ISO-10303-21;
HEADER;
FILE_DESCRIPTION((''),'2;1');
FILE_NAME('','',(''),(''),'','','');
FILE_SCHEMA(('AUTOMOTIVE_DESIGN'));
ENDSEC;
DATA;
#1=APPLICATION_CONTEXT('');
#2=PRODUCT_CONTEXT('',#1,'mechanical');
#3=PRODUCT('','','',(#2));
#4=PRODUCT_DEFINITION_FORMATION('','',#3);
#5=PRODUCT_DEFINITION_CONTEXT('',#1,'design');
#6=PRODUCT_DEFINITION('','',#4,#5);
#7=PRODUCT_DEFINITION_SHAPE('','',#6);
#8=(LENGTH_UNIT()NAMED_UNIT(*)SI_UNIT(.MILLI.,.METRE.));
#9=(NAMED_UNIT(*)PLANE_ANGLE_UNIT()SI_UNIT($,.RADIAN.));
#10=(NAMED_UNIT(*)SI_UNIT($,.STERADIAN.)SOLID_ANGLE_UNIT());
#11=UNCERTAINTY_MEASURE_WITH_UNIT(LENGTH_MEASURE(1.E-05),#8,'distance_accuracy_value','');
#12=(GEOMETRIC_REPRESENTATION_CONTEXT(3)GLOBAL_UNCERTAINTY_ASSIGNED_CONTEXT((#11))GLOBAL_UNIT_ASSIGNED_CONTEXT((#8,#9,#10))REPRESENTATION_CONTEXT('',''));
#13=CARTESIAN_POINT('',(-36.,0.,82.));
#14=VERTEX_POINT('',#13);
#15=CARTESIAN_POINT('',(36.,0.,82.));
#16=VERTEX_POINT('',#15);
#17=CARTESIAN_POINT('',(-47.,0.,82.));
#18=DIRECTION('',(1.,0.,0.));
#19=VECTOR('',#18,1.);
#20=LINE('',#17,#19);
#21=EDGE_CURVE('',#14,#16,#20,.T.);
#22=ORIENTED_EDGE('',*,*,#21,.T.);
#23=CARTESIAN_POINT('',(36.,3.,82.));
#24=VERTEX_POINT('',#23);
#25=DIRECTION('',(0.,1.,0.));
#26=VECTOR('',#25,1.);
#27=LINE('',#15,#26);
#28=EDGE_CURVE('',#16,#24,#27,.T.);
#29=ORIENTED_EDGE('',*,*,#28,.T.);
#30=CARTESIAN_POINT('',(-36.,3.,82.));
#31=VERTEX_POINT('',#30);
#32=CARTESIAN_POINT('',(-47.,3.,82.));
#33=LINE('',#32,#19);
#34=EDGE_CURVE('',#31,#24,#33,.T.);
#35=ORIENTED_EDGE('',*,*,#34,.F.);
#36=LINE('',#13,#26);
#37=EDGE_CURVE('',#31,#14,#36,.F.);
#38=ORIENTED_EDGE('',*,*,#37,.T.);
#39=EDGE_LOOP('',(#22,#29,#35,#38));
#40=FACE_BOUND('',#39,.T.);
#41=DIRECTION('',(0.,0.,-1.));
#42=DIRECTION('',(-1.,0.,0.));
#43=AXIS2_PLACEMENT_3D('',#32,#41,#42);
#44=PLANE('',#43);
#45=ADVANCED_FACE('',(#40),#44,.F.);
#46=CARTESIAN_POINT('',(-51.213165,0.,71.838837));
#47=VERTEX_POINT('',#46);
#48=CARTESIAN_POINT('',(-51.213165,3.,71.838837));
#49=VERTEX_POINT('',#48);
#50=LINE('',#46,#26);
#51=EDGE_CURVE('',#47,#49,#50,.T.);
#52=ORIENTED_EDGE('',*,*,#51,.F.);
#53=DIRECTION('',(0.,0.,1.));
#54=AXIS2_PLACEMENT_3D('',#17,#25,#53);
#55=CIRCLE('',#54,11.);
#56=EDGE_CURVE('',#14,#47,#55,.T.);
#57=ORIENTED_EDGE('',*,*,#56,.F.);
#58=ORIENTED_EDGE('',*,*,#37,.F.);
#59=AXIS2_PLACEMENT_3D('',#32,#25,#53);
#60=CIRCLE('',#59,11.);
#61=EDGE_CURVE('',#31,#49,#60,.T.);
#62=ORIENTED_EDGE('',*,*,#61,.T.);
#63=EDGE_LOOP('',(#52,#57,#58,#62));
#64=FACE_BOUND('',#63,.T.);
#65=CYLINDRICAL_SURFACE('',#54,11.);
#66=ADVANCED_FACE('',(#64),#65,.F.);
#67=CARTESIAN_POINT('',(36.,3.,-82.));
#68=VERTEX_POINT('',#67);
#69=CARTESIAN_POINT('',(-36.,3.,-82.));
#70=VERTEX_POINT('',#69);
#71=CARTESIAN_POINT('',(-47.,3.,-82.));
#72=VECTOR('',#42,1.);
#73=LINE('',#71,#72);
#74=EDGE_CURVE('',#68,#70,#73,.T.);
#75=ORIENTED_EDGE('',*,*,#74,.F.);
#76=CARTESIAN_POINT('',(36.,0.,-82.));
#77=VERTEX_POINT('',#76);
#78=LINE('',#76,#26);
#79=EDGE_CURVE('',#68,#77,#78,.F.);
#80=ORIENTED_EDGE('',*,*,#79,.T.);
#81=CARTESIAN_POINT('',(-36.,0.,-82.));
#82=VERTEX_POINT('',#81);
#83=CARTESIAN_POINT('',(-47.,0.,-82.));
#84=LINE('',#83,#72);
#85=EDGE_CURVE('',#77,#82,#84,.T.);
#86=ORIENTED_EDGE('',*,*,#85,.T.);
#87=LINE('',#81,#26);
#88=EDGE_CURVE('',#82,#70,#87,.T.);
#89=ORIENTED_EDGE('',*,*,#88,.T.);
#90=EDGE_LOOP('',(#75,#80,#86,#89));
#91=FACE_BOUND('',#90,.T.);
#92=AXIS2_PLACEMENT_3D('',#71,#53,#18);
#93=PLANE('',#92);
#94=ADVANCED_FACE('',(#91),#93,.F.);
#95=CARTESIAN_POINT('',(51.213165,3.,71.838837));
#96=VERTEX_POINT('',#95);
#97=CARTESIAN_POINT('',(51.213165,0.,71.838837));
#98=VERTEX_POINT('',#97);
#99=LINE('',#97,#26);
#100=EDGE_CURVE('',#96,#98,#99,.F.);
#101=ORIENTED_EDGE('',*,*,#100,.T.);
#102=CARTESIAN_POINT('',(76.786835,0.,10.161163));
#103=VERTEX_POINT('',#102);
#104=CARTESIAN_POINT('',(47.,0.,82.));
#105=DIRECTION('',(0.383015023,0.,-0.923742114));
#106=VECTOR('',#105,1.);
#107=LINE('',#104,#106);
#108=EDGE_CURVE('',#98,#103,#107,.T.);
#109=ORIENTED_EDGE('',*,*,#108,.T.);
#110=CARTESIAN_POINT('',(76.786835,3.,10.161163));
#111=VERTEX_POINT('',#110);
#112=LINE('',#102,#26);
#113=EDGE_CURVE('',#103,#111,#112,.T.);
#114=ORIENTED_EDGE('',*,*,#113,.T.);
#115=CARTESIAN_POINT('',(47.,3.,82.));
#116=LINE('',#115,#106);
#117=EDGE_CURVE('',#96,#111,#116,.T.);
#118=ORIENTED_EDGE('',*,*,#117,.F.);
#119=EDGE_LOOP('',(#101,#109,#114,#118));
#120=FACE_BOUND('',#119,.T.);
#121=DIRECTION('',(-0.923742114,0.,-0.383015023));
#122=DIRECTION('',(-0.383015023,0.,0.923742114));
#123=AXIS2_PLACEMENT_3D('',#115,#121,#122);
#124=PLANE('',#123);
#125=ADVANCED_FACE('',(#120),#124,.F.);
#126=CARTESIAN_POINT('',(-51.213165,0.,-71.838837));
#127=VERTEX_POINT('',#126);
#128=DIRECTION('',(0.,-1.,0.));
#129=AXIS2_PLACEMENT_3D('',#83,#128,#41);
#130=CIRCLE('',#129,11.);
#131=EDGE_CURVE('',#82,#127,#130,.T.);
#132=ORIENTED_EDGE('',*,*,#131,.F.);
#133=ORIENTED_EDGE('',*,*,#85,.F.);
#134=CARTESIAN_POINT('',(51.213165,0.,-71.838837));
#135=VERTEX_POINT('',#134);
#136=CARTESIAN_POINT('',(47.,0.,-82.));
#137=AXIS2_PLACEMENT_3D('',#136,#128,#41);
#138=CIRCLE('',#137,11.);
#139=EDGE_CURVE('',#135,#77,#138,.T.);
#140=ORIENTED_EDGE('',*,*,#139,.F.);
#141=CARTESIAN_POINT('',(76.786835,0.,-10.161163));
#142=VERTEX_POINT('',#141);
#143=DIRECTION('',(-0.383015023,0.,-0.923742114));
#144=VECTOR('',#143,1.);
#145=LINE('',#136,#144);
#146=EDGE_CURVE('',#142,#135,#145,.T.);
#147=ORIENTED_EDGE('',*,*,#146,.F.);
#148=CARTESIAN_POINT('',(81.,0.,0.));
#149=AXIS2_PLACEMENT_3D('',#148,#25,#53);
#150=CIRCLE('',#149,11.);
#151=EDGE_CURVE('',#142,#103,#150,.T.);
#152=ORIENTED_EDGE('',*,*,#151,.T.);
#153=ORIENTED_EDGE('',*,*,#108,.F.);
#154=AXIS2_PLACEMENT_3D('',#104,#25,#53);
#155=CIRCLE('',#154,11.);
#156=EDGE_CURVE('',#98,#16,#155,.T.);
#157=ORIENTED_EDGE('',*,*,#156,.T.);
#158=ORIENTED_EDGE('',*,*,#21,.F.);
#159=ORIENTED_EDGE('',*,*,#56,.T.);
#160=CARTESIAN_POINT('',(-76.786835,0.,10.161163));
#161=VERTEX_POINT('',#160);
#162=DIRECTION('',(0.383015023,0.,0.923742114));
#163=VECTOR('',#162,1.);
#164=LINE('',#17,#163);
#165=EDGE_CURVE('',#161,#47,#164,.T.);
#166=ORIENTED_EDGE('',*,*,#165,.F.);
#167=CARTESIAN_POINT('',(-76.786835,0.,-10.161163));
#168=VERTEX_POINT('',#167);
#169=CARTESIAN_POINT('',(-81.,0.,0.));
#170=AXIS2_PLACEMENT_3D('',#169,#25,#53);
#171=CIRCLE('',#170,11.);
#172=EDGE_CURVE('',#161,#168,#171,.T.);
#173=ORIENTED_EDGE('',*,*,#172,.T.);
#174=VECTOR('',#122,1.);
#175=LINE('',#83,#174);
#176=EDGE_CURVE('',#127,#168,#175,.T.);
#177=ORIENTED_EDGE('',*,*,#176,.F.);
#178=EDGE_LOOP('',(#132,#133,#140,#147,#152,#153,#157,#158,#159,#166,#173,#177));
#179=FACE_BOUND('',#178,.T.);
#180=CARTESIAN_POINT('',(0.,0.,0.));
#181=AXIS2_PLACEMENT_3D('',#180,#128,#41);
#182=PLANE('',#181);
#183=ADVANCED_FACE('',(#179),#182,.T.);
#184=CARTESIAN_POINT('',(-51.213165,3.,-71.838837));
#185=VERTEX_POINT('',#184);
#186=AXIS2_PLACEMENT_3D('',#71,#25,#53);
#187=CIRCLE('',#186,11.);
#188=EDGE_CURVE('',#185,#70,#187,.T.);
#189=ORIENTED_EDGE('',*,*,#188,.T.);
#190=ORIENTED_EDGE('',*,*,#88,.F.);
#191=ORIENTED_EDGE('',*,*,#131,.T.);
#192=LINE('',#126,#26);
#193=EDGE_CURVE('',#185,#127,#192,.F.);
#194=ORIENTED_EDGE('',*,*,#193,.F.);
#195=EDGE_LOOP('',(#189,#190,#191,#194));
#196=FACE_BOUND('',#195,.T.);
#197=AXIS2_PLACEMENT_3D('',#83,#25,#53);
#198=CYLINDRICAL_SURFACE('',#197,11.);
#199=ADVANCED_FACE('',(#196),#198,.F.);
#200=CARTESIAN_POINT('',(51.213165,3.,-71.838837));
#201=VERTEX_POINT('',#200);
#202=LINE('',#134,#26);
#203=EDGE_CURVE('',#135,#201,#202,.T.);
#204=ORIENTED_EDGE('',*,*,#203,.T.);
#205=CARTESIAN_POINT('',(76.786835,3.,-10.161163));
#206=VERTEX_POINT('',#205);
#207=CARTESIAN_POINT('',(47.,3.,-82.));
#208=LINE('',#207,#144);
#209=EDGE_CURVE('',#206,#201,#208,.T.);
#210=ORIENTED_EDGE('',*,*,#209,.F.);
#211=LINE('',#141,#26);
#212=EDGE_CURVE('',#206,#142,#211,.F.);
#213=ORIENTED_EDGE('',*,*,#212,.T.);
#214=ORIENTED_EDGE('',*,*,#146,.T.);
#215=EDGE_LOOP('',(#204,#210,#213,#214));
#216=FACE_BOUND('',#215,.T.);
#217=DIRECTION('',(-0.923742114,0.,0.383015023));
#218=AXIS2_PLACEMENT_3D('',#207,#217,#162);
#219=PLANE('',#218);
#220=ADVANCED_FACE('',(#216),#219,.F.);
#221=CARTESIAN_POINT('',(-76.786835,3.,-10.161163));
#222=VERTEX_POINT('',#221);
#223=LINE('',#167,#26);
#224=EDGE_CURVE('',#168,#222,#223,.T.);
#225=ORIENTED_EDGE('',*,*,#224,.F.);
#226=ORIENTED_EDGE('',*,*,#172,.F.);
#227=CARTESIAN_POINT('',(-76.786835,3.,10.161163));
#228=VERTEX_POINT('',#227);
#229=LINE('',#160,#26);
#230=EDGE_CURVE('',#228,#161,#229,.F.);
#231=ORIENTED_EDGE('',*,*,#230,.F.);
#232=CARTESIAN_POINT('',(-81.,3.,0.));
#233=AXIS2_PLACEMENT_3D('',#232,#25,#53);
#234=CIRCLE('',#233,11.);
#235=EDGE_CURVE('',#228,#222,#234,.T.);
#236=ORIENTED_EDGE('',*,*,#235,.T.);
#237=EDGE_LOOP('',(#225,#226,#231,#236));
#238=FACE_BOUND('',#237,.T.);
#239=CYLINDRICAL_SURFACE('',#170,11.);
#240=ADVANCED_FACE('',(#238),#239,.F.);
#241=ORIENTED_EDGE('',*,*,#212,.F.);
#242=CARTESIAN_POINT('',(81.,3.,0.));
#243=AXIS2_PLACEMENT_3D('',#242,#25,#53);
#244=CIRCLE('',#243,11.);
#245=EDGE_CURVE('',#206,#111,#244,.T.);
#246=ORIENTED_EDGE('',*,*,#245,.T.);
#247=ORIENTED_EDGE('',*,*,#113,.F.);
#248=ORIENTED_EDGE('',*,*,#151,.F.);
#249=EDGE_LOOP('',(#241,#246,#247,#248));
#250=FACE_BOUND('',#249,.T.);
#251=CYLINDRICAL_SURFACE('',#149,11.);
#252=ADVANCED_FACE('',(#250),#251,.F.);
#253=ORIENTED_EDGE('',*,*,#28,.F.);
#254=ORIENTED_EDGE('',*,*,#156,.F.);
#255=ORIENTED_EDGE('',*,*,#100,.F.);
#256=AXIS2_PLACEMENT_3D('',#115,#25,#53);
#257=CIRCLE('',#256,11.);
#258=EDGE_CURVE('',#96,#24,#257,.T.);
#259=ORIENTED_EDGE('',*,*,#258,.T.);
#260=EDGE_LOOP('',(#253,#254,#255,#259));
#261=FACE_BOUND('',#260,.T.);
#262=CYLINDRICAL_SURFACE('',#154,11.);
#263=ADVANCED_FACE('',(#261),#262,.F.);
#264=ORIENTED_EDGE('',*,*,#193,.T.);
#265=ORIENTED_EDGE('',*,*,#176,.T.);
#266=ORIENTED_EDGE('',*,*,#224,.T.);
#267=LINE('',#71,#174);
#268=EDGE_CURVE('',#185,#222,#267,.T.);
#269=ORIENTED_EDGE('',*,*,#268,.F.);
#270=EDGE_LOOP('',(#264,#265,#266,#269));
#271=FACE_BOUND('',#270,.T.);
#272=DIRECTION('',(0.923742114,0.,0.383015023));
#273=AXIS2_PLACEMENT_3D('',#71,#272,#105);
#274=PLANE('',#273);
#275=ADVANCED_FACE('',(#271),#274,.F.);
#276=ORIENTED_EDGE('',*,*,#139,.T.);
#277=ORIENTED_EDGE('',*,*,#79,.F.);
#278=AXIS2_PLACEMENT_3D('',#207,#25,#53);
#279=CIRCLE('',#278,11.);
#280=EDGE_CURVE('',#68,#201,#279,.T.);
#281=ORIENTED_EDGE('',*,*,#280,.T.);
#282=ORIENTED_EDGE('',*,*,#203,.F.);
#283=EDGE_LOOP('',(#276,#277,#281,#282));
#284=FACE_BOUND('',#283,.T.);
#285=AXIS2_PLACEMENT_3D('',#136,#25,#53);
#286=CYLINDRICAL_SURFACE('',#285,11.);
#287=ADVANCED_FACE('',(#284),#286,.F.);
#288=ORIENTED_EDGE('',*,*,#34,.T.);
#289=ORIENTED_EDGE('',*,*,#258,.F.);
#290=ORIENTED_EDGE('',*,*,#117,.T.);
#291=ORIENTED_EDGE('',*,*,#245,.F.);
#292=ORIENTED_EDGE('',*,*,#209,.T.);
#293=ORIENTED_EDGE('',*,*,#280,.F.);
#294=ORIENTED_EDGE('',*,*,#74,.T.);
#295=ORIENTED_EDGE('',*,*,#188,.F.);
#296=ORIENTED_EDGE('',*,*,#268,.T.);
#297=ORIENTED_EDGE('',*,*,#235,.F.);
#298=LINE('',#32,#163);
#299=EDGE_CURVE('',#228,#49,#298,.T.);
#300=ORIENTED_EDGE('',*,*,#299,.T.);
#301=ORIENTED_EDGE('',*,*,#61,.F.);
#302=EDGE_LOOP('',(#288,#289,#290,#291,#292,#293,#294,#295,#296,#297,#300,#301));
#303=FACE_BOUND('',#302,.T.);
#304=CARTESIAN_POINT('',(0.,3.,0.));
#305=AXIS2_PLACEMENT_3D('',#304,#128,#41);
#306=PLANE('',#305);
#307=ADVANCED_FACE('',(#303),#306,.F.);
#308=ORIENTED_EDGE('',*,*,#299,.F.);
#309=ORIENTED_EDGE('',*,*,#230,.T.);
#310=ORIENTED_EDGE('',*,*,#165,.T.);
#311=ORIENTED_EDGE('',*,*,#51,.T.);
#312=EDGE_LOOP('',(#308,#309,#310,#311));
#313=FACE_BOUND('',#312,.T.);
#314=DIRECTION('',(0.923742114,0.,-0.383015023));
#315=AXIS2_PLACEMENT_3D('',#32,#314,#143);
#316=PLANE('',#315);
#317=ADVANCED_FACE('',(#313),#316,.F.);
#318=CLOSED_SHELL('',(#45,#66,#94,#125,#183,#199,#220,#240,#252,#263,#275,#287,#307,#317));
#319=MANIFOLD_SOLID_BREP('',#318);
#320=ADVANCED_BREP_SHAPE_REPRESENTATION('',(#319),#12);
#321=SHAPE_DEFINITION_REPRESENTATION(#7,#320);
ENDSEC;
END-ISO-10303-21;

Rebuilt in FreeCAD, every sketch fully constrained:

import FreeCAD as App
import Part
import Sketcher

V = App.Vector


def add_polygon(sketch, points):
    """Adds a closed chain of lines whose ends are joined by coincident constraints."""
    first, n = sketch.GeometryCount, len(points)
    for a, b in zip(points, points[1:] + points[:1]):
        sketch.addGeometry(Part.LineSegment(App.Vector(*a, 0), App.Vector(*b, 0)), False)
    for i in range(n):
        sketch.addConstraint(Sketcher.Constraint("Coincident", first + i, 2, first + (i + 1) % n, 1))

doc = App.newDocument("Part")
body = doc.addObject("PartDesign::Body", "Body")

# Sketch on XZ plane
sketch1 = body.newObject("Sketcher::SketchObject", "Sketch")
sketch1.AttachmentSupport = (doc.getObject("XZ_Plane"), [""])
sketch1.MapMode = "FlatFace"
add_polygon(sketch1, [(47, -82), (-47, -82), (-81, 0), (-47, 82), (47, 82), (81, 0)])  # lines 0-5
sketch1.addConstraint([
    Sketcher.Constraint("Horizontal", 0),
    Sketcher.Constraint("Horizontal", 3),
    Sketcher.Constraint("Symmetric", 0, 2, 3, 2, -1, 1),
    Sketcher.Constraint("Symmetric", 1, 2, 4, 2, -1, 1),
    Sketcher.Constraint("PointOnObject", 1, 2, -1),
    Sketcher.Constraint("Parallel", 2, 5),
    Sketcher.Constraint("Vertical", 0, 2, 2, 2),
    Sketcher.Constraint("DistanceX", 0, 2, 0, 1, 94.0),
    Sketcher.Constraint("DistanceY", 0, 2, -1, 1, 82.0),
    Sketcher.Constraint("DistanceX", 1, 2, -1, 1, 81.0),
])
pad1 = body.newObject("PartDesign::Pad", "Pad")
pad1.Profile = sketch1
pad1.Length = 3
pad1.Reversed = True

# Sketch on XZ plane
sketch2 = body.newObject("Sketcher::SketchObject", "Sketch001")
sketch2.AttachmentSupport = (doc.getObject("XZ_Plane"), [""])
sketch2.MapMode = "FlatFace"
sketch2.AttachmentOffset = App.Placement(V(0, 0, -3), App.Rotation())
sketch2.addGeometry([
    Part.Circle(V(-81, 0, 0), V(0, 0, 1), 11),  # 0
    Part.Circle(V(81, 0, 0), V(0, 0, 1), 11),  # 1
    Part.Circle(V(47, 82, 0), V(0, 0, 1), 11),  # 2
    Part.Circle(V(-47, 82, 0), V(0, 0, 1), 11),  # 3
    Part.Circle(V(-47, -82, 0), V(0, 0, 1), 11),  # 4
    Part.Circle(V(47, -82, 0), V(0, 0, 1), 11),  # 5
], False)
sketch2.addConstraint([
    Sketcher.Constraint("Equal", 0, 1),
    Sketcher.Constraint("Equal", 1, 2),
    Sketcher.Constraint("Equal", 2, 3),
    Sketcher.Constraint("Equal", 3, 4),
    Sketcher.Constraint("Equal", 4, 5),
    Sketcher.Constraint("Symmetric", 0, 3, 1, 3, -1, 1),
    Sketcher.Constraint("Symmetric", 2, 3, 4, 3, -1, 1),
    Sketcher.Constraint("Symmetric", 3, 3, 5, 3, -1, 1),
    Sketcher.Constraint("Symmetric", 2, 3, 3, 3, -2),
    Sketcher.Constraint("PointOnObject", 0, 3, -1),
    Sketcher.Constraint("Diameter", 0, 22.0),
    Sketcher.Constraint("DistanceX", 0, 3, -1, 1, 81.0),
    Sketcher.Constraint("DistanceX", -1, 1, 2, 3, 47.0),
    Sketcher.Constraint("DistanceY", -1, 1, 2, 3, 82.0),
])
pocket1 = body.newObject("PartDesign::Pocket", "Pocket")
pocket1.Profile = sketch2
pocket1.Type = "ThroughAll"
pocket1.Reversed = True

doc.recompute()
